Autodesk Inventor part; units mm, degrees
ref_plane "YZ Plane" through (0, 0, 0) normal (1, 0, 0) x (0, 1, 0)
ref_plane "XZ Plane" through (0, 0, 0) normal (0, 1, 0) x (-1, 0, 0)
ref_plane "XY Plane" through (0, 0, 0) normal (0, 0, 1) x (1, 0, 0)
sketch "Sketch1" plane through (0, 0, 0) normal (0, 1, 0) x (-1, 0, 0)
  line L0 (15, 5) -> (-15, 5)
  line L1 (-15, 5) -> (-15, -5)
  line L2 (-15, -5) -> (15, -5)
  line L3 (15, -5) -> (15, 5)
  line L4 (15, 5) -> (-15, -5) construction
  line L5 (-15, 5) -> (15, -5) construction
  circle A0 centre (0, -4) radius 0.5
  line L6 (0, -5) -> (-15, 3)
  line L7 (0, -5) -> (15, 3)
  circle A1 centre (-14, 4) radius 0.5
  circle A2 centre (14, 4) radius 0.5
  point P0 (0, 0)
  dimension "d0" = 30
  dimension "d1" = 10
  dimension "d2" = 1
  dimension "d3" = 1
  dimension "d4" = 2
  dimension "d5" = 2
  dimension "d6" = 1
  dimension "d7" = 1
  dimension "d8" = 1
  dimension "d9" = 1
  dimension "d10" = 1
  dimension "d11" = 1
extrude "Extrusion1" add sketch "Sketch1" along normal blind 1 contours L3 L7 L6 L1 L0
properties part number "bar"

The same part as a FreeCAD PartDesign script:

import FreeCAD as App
import Part
import Sketcher
from FreeCAD import Vector


def add_polygon(sketch, points):
    """Adds a closed chain of lines whose ends are joined by coincident constraints."""
    first, n = sketch.GeometryCount, len(points)
    for a, b in zip(points, points[1:] + points[:1]):
        sketch.addGeometry(Part.LineSegment(App.Vector(*a, 0), App.Vector(*b, 0)), False)
    for i in range(n):
        sketch.addConstraint(Sketcher.Constraint("Coincident", first + i, 2, first + (i + 1) % n, 1))

doc = App.newDocument("Part")
body = doc.addObject("PartDesign::Body", "Body")

sketch1 = body.newObject("Sketcher::SketchObject", "Sketch")
sketch1.AttachmentSupport = (doc.getObject("XZ_Plane"), [""])
sketch1.MapMode = "FlatFace"
add_polygon(sketch1, [(-15, 3), (-15, 5), (15, 5), (15, 3), (0, -5)])
sketch1.addGeometry(Part.Circle(Vector(0, -4, 0), Vector(0, 0, 1), 0.5), False)
sketch1.addGeometry(Part.Circle(Vector(14, 4, 0), Vector(0, 0, 1), 0.5), False)
sketch1.addGeometry(Part.Circle(Vector(-14, 4, 0), Vector(0, 0, 1), 0.5), False)
sketch1.addConstraint([
    Sketcher.Constraint("Vertical", 0),
    Sketcher.Constraint("Horizontal", 1),
    Sketcher.Constraint("Vertical", 2),
    Sketcher.Constraint("Equal", 5, 6),
    Sketcher.Constraint("Equal", 6, 7),
    Sketcher.Constraint("Symmetric", 6, 3, 7, 3, -2),
    Sketcher.Constraint("Symmetric", 2, 2, 4, 2, -2),
    Sketcher.Constraint("PointOnObject", 5, 3, -2),
    Sketcher.Constraint("PointOnObject", 3, 2, -2),
    Sketcher.Constraint("Diameter", 5, 1.0),
    Sketcher.Constraint("DistanceX", 1, 1, 1, 2, 30.0),
    Sketcher.Constraint("DistanceY", 0, 1, 0, 2, 2.0),
    Sketcher.Constraint("DistanceX", 0, 2, 7, 3, 1.0),
    Sketcher.Constraint("DistanceY", 7, 3, 0, 2, 1.0),
    Sketcher.Constraint("DistanceY", 3, 2, 5, 3, 1.0),
    Sketcher.Constraint("DistanceY", 3, 2, 0, 2, 10.0),
    Sketcher.Constraint("DistanceY", 5, 3, -1, 1, 4.0),
])
pad1 = body.newObject("PartDesign::Pad", "Pad")
pad1.Profile = sketch1
pad1.Length = 1
pad1.Reversed = True

doc.recompute()
